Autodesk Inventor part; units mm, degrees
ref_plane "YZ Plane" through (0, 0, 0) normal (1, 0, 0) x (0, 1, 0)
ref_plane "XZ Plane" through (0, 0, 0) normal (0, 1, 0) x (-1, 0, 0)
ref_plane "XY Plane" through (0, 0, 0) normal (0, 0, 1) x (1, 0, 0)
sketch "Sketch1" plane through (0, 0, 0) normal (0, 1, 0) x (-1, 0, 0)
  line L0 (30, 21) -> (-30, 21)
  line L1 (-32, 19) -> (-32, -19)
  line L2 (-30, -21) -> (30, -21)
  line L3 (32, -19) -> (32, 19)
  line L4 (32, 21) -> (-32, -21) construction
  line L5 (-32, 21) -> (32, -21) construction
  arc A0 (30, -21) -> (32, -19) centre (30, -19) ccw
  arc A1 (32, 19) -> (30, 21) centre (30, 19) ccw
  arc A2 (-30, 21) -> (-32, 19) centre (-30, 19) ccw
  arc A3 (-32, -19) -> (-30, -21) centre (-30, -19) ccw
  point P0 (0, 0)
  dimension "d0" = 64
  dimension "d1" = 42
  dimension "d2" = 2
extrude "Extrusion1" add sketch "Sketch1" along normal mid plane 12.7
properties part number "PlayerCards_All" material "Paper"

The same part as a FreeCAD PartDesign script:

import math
import FreeCAD as App
import Part
import Sketcher
from FreeCAD import Vector

doc = App.newDocument("Part")
body = doc.addObject("PartDesign::Body", "Body")

sketch1 = body.newObject("Sketcher::SketchObject", "Sketch")
sketch1.AttachmentSupport = (doc.getObject("XZ_Plane"), [""])
sketch1.MapMode = "FlatFace"
sketch1.addGeometry([
    Part.ArcOfCircle(Part.Circle(Vector(-30, 19, 0), Vector(0, 0, 1), 2), math.radians(90), math.radians(180)),
    Part.LineSegment(Vector(-30, 21, 0), Vector(30, 21, 0)),
    Part.ArcOfCircle(Part.Circle(Vector(30, 19, 0), Vector(0, 0, 1), 2), math.radians(0), math.radians(90)),
    Part.LineSegment(Vector(32, 19, 0), Vector(32, -19, 0)),
    Part.ArcOfCircle(Part.Circle(Vector(30, -19, 0), Vector(0, 0, 1), 2), math.radians(-90), math.radians(0)),
    Part.LineSegment(Vector(30, -21, 0), Vector(-30, -21, 0)),
    Part.ArcOfCircle(Part.Circle(Vector(-30, -19, 0), Vector(0, 0, 1), 2), math.radians(180), math.radians(270)),
    Part.LineSegment(Vector(-32, -19, 0), Vector(-32, 19, 0)),
], False)
sketch1.addConstraint([
    Sketcher.Constraint("Tangent", 0, 1, 1, 1),
    Sketcher.Constraint("Tangent", 1, 2, 2, 2),
    Sketcher.Constraint("Tangent", 2, 1, 3, 1),
    Sketcher.Constraint("Tangent", 3, 2, 4, 2),
    Sketcher.Constraint("Tangent", 4, 1, 5, 1),
    Sketcher.Constraint("Tangent", 5, 2, 6, 2),
    Sketcher.Constraint("Tangent", 6, 1, 7, 1),
    Sketcher.Constraint("Tangent", 7, 2, 0, 2),
    Sketcher.Constraint("Horizontal", 1),
    Sketcher.Constraint("Vertical", 3),
    Sketcher.Constraint("Horizontal", 5),
    Sketcher.Constraint("Vertical", 7),
    Sketcher.Constraint("Equal", 0, 2),
    Sketcher.Constraint("Equal", 2, 4),
    Sketcher.Constraint("Equal", 4, 6),
    Sketcher.Constraint("Symmetric", 0, 3, 4, 3, -1, 1),
    Sketcher.Constraint("Radius", 0, 2.0),
    Sketcher.Constraint("DistanceY", 4, 1, 1, 2, 42.0),
    Sketcher.Constraint("DistanceX", 1, 1, 1, 2, 60.0),
])
pad1 = body.newObject("PartDesign::Pad", "Pad")
pad1.Profile = sketch1
pad1.Length = 12.7
pad1.Midplane = True

doc.recompute()
